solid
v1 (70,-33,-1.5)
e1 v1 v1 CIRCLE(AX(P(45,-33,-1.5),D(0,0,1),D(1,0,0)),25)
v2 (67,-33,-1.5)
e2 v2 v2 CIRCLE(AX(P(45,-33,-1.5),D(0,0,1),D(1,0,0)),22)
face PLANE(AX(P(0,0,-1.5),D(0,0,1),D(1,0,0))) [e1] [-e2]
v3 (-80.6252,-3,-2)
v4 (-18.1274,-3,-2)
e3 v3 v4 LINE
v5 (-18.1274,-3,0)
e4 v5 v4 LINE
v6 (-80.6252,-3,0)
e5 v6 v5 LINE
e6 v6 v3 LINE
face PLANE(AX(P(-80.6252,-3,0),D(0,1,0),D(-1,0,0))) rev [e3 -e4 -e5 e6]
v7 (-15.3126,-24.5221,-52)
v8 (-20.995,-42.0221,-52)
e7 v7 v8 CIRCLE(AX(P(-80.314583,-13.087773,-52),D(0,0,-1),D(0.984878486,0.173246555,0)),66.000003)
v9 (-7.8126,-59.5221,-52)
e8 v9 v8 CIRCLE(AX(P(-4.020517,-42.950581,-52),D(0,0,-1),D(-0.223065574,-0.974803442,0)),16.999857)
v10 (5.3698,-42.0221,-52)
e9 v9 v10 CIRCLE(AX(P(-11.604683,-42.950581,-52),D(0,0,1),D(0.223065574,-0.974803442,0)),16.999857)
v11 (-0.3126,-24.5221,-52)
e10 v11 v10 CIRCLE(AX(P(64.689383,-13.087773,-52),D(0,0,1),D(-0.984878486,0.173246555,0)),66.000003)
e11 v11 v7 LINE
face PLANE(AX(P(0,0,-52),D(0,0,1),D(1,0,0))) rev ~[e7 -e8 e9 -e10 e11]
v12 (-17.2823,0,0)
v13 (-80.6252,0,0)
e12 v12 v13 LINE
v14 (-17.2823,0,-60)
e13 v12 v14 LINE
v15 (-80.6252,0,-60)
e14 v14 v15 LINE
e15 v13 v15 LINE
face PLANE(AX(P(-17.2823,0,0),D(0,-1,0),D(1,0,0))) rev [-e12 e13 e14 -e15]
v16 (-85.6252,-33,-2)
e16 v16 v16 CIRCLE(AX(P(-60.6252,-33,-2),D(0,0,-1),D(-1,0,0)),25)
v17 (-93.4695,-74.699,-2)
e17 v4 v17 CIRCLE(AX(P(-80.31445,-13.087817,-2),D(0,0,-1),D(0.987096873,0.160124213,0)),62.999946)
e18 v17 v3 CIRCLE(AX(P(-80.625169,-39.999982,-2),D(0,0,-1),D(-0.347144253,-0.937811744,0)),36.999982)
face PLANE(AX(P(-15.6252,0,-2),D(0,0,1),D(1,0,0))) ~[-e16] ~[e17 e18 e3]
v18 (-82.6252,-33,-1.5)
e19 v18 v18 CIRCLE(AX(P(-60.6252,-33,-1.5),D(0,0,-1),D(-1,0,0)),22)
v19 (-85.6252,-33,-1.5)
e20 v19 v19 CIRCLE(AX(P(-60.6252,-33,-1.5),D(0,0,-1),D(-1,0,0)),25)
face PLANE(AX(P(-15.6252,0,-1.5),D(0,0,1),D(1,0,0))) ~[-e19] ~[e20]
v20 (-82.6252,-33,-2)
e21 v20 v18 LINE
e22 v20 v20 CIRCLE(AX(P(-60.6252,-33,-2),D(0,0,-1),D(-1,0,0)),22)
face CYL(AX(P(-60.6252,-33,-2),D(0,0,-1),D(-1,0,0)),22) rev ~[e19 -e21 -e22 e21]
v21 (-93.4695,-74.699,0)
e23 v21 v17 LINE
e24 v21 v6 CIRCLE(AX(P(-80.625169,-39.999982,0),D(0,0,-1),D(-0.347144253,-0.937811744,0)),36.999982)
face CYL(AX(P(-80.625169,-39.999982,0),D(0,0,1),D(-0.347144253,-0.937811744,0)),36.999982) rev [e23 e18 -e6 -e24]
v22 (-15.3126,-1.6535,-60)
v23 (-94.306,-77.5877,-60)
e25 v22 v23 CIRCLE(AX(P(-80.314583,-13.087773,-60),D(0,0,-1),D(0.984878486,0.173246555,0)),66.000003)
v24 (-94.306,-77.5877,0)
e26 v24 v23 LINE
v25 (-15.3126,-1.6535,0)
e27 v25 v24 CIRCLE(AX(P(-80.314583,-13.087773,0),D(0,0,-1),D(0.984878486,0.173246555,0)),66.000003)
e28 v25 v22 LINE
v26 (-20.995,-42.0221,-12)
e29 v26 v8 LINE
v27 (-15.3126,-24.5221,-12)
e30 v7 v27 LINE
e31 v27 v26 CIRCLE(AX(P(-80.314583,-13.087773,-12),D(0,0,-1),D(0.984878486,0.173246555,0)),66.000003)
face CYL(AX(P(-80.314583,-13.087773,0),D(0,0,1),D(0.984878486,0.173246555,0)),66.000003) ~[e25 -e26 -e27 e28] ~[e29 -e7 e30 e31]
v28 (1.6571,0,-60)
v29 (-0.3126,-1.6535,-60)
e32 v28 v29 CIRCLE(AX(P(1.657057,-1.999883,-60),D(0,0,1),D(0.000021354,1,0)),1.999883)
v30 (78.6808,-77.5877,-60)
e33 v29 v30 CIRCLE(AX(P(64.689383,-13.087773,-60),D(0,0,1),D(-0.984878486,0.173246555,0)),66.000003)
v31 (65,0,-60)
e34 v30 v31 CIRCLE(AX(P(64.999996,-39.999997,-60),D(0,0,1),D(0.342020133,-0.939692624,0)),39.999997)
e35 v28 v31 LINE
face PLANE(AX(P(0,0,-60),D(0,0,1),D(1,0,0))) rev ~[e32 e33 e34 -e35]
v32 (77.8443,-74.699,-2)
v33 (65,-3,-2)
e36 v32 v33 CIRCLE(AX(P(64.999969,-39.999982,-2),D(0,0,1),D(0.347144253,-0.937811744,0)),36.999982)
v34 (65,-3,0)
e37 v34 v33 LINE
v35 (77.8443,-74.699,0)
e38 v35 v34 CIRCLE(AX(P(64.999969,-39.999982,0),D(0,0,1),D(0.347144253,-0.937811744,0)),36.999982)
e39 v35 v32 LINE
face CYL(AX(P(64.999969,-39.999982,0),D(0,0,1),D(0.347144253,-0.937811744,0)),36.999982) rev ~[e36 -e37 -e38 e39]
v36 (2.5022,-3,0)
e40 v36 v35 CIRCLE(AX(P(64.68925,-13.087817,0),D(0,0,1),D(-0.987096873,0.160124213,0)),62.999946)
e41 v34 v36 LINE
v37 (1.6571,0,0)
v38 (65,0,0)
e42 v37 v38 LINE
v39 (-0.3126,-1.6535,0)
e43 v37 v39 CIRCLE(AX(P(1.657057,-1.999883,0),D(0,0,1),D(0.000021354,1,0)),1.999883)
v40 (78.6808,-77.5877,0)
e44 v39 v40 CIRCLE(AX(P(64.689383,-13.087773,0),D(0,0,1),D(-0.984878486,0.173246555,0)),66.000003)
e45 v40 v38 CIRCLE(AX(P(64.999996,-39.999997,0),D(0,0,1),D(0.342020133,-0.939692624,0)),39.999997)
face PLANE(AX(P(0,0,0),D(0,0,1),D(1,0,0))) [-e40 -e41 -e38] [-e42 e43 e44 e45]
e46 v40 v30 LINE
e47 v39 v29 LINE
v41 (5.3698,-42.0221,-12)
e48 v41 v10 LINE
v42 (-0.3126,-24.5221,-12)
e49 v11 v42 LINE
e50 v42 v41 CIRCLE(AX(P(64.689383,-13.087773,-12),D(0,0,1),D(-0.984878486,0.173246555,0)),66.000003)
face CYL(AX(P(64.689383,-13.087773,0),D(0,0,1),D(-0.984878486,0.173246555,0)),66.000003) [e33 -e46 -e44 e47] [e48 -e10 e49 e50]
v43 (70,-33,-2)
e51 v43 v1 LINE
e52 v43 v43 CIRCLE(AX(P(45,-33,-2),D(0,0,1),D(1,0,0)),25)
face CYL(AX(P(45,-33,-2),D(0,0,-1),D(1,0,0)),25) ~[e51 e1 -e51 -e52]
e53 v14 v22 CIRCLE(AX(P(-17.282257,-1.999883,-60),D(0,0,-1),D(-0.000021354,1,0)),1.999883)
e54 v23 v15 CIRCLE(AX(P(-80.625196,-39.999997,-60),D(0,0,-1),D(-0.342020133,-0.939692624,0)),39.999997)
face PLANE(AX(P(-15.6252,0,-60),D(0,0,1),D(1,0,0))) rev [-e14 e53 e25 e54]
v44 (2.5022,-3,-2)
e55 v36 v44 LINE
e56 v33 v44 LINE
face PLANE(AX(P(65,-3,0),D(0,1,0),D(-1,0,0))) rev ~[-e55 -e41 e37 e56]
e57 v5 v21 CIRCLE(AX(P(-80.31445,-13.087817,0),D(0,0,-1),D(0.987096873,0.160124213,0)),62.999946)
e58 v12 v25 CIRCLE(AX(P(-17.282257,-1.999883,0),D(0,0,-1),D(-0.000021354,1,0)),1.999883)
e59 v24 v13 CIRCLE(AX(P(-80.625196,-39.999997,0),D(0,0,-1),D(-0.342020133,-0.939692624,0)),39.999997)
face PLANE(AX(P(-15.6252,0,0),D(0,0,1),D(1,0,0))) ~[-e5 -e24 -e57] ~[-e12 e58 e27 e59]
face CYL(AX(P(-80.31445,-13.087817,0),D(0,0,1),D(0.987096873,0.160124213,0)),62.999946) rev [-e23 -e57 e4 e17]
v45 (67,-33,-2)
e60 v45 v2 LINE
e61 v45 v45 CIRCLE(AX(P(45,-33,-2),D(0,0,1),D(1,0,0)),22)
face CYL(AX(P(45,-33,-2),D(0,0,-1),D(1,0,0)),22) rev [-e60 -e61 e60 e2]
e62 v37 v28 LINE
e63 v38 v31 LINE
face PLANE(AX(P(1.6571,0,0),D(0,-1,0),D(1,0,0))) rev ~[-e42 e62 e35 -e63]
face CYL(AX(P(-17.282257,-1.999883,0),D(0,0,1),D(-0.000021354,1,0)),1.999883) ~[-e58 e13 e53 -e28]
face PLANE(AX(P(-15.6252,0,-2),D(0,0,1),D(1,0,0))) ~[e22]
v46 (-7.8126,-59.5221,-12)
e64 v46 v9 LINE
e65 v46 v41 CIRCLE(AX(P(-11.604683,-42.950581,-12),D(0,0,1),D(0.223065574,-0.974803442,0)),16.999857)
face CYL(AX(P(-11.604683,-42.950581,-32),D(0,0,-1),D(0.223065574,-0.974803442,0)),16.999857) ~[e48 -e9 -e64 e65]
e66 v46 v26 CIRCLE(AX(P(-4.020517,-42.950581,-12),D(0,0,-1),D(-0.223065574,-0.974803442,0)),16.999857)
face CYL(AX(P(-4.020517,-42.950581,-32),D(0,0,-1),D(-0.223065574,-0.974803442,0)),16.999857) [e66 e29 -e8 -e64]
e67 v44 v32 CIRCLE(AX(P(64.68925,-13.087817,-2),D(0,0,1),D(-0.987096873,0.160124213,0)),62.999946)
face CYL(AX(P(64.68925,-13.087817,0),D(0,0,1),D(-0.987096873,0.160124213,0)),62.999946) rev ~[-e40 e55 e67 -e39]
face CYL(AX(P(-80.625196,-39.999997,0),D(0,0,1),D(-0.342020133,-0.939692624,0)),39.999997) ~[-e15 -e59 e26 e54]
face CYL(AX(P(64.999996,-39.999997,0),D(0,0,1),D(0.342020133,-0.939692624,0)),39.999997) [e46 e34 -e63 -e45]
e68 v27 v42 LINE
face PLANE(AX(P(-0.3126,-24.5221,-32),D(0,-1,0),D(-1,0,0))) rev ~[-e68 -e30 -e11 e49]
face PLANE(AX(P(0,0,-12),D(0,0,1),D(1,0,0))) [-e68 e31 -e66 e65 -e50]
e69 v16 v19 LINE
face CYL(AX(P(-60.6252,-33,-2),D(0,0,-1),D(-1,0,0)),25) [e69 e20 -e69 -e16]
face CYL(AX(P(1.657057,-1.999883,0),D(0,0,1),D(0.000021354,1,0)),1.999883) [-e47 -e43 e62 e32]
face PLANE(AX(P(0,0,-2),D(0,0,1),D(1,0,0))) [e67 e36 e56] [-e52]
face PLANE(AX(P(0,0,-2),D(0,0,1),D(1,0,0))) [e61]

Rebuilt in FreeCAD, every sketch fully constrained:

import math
import FreeCAD as App
import Part
import Sketcher

V = App.Vector

doc = App.newDocument("Part")
body = doc.addObject("PartDesign::Body", "Body")

sketch1 = doc.addObject("Sketcher::SketchObject", "Sketch")
body.addObject(sketch1)
sketch1.AttachmentSupport = (doc.XY_Plane, [""])
sketch1.MapMode = "FlatFace"
sketch1.addGeometry([
    Part.LineSegment(V(65, 0, 0), V(1.7, 0, 0)),
    Part.ArcOfCircle(Part.Circle(V(1.7, -2, 0), V(0, 0, 1), 2), math.radians(90), math.radians(170)),
    Part.ArcOfCircle(Part.Circle(V(64.7, -13.1, 0), V(0, 0, 1), 66), math.radians(170), math.radians(282)),
    Part.ArcOfCircle(Part.Circle(V(65, -40, 0), V(0, 0, 1), 40), math.radians(-70), math.radians(90)),
], False)
sketch1.addConstraint([
    Sketcher.Constraint("Tangent", 0, 2, 1, 1),
    Sketcher.Constraint("Tangent", 1, 2, 2, 1),
    Sketcher.Constraint("Coincident", 2, 2, 3, 1),
    Sketcher.Constraint("Tangent", 3, 2, 0, 1),
    Sketcher.Constraint("Horizontal", 0),
    Sketcher.Constraint("PointOnObject", 0, 2, -1),
    Sketcher.Constraint("Radius", 1, 2.0),
    Sketcher.Constraint("Radius", 2, 66.0),
    Sketcher.Constraint("DistanceX", -1, 1, 3, 3, 65.0),
    Sketcher.Constraint("Radius", 3, 40.0),
    Sketcher.Constraint("DistanceX", 0, 2, 0, 1, 63.343),
    Sketcher.Constraint("DistanceX", 1, 2, 2, 3, 65.002),
])
pad1 = doc.addObject("PartDesign::Pad", "Pad")
body.addObject(pad1)
pad1.Profile = sketch1
pad1.Length = 60
pad1.Reversed = True

sketch2 = doc.addObject("Sketcher::SketchObject", "Sketch001")
body.addObject(sketch2)
sketch2.AttachmentSupport = (doc.XY_Plane, [""])
sketch2.MapMode = "FlatFace"
sketch2.addGeometry([
    Part.ArcOfCircle(Part.Circle(V(65, -40, 0), V(0, 0, 1), 37), math.radians(-70), math.radians(90)),
    Part.LineSegment(V(65, -3, 0), V(3, -3, 0)),
    Part.ArcOfCircle(Part.Circle(V(65, -13, 0), V(0, 0, 1), 63), math.radians(171), math.radians(282)),
], False)
sketch2.addConstraint([
    Sketcher.Constraint("Tangent", 0, 2, 1, 1),
    Sketcher.Constraint("Coincident", 1, 2, 2, 1),
    Sketcher.Constraint("Coincident", 2, 2, 0, 1),
    Sketcher.Constraint("Horizontal", 1),
    Sketcher.Constraint("DistanceX", -1, 1, 0, 3, 65.0),
    Sketcher.Constraint("DistanceY", 0, 2, -1, 1, 3.0),
    Sketcher.Constraint("Radius", 0, 37.0),
    Sketcher.Constraint("Radius", 2, 63.0),
    Sketcher.Constraint("DistanceX", 1, 2, 1, 1, 62.4978),
    Sketcher.Constraint("DistanceY", 2, 2, -1, 1, 74.699),
])
pocket1 = doc.addObject("PartDesign::Pocket", "Pocket")
body.addObject(pocket1)
pocket1.Profile = sketch2
pocket1.Length = 2

sketch3 = doc.addObject("Sketcher::SketchObject", "Sketch002")
body.addObject(sketch3)
sketch3.AttachmentSupport = (doc.XY_Plane, [""])
sketch3.MapMode = "FlatFace"
sketch3.AttachmentOffset = App.Placement(V(0, 0, -2), App.Rotation())
sketch3.addGeometry([
    Part.Circle(V(45, -33, 0), V(0, 0, 1), 25),
    Part.Circle(V(45, -33, 0), V(0, 0, 1), 22),
], False)
sketch3.addConstraint([
    Sketcher.Constraint("Coincident", 1, 3, 0, 3),
    Sketcher.Constraint("Diameter", 0, 50.0),
    Sketcher.Constraint("Diameter", 1, 44.0),
    Sketcher.Constraint("DistanceX", -1, 1, 0, 3, 45.0),
    Sketcher.Constraint("DistanceY", 0, 3, -1, 1, 33.0),
])
pad2 = doc.addObject("PartDesign::Pad", "Pad001")
body.addObject(pad2)
pad2.Profile = sketch3
pad2.Length = 0.5

sketch4 = doc.addObject("Sketcher::SketchObject", "Sketch003")
body.addObject(sketch4)
sketch4.AttachmentSupport = (doc.XY_Plane, [""])
sketch4.MapMode = "FlatFace"
sketch4.AttachmentOffset = App.Placement(V(0, 0, -32), App.Rotation())
sketch4.addGeometry([
    Part.ArcOfCircle(Part.Circle(V(65, -13, 0), V(0, 0, 1), 66), math.radians(-170.02), math.radians(-154)),
    Part.LineSegment(V(0, -25, 0), V(-8, -25, 0)),
    Part.LineSegment(V(-8, -25, 0), V(-8, -60, 0)),
    Part.ArcOfCircle(Part.Circle(V(-12, -43, 0), V(0, 0, 1), 17), math.radians(-77), math.radians(3)),
], False)
sketch4.addConstraint([
    Sketcher.Constraint("Coincident", 0, 1, 1, 1),
    Sketcher.Constraint("Coincident", 1, 2, 2, 1),
    Sketcher.Constraint("Coincident", 2, 2, 3, 1),
    Sketcher.Constraint("Coincident", 3, 2, 0, 2),
    Sketcher.Constraint("Horizontal", 1),
    Sketcher.Constraint("Vertical", 2),
    Sketcher.Constraint("Radius", 3, 17.0),
    Sketcher.Constraint("DistanceY", 2, 2, 2, 1, 35.0),
    Sketcher.Constraint("DistanceX", 1, 2, 1, 1, 7.5),
    Sketcher.Constraint("Radius", 0, 66.0),
    Sketcher.Constraint("DistanceY", 3, 2, 0, 1, 17.5),
    Sketcher.Constraint("DistanceX", -1, 1, 3, 2, 5.37),
    Sketcher.Constraint("DistanceY", 0, 1, -1, 1, 24.522),
    Sketcher.Constraint("DistanceX", 3, 3, 0, 3, 76.294),
])
pad3 = doc.addObject("PartDesign::Pad", "Pad002")
body.addObject(pad3)
pad3.Profile = sketch4
pad3.Length = 40
pad3.Midplane = True
doc.recompute()

datumplane = doc.addObject("PartDesign::Plane", "DatumPlane")
body.addObject(datumplane)
datumplane.AttachmentSupport = (doc.YZ_Plane, [""])
datumplane.MapMode = "FlatFace"
datumplane.AttachmentOffset = App.Placement(V(0, 0, -7.8126), App.Rotation())
mirrored = doc.addObject("PartDesign::Mirrored", "Mirrored")
body.addObject(mirrored)
mirrored.TransformMode = "Transform body"
mirrored.MirrorPlane = (datumplane, [""])
body.Tip = mirrored

doc.recompute()
